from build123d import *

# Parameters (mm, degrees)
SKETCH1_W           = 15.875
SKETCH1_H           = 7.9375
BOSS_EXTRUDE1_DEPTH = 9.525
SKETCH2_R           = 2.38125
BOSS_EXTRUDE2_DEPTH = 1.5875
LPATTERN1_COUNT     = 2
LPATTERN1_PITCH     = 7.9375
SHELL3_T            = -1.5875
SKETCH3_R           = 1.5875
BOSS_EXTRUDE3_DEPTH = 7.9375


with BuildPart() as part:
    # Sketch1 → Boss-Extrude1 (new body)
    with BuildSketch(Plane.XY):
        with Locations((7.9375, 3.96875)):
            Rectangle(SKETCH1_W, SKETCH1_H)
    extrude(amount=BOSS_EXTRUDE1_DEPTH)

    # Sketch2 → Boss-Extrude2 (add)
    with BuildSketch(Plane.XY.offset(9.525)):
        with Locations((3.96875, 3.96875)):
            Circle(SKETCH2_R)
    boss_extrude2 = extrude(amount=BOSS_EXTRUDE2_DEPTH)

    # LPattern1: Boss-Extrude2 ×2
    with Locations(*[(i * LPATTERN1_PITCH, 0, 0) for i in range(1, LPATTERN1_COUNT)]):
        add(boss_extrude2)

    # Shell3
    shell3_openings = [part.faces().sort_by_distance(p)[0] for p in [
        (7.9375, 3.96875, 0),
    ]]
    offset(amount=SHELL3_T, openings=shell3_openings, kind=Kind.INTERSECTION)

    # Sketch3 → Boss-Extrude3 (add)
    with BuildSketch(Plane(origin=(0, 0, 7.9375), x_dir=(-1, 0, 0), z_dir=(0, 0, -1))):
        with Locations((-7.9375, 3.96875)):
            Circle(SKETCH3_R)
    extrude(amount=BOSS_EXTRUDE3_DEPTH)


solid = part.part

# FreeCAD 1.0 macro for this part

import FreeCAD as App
import Part
import Sketcher
from FreeCAD import Vector
Q = App.Units.Quantity


def faces_at(feature, points):
    """Names of the faces that lie closest to the given points."""
    faces = feature.Shape.Faces
    near = lambda p: min(range(len(faces)), key=lambda i: faces[i].distToShape(Part.Vertex(*p))[0])
    return sorted({f"Face{near(p) + 1}" for p in points})


def add_polygon(sketch, points):
    """Adds a closed chain of lines whose ends are joined by coincident constraints."""
    first, n = sketch.GeometryCount, len(points)
    for a, b in zip(points, points[1:] + points[:1]):
        sketch.addGeometry(Part.LineSegment(App.Vector(*a, 0), App.Vector(*b, 0)), False)
    for i in range(n):
        sketch.addConstraint(Sketcher.Constraint("Coincident", first + i, 2, first + (i + 1) % n, 1))

doc = App.newDocument("Part")
body = doc.addObject("PartDesign::Body", "Body")

sketch1 = body.newObject("Sketcher::SketchObject", "Sketch")
sketch1.AttachmentSupport = (doc.getObject("XY_Plane"), [""])
sketch1.MapMode = "FlatFace"
add_polygon(sketch1, [(0, 8), (0, 0), (16, 0), (16, 8)])
sketch1.addConstraint([
    Sketcher.Constraint("Vertical", 0),
    Sketcher.Constraint("Horizontal", 1),
    Sketcher.Constraint("Vertical", 2),
    Sketcher.Constraint("Horizontal", 3),
    Sketcher.Constraint("Coincident", 0, 2, -1, 1),
    Sketcher.Constraint("DistanceX", 1, 1, 1, 2, Q("0.625 in")),
    Sketcher.Constraint("DistanceY", 0, 2, 0, 1, Q("0.3125 in")),
])
pad1 = body.newObject("PartDesign::Pad", "Pad")
pad1.Profile = sketch1
pad1.Length = Q("0.375 in")

sketch2 = body.newObject("Sketcher::SketchObject", "Sketch001")
sketch2.AttachmentSupport = (doc.getObject("XY_Plane"), [""])
sketch2.MapMode = "FlatFace"
sketch2.AttachmentOffset = App.Placement(Vector(0, 0, 0.375 * 25.4), App.Rotation())
sketch2.addGeometry(Part.Circle(Vector(4, 4, 0), Vector(0, 0, 1), 2.4), False)
sketch2.addConstraint([
    Sketcher.Constraint("Diameter", 0, Q("0.1875 in")),
    Sketcher.Constraint("DistanceX", -1, 1, 0, 3, Q("0.15625 in")),
    Sketcher.Constraint("DistanceY", -1, 1, 0, 3, Q("0.15625 in")),
])
pad2 = body.newObject("PartDesign::Pad", "Pad001")
pad2.Profile = sketch2
pad2.Length = Q("0.0625 in")
doc.recompute()

linearpattern = body.newObject("PartDesign::LinearPattern", "LinearPattern")
linearpattern.Originals = [pad2]
linearpattern.Direction = (doc.getObject("X_Axis"), [""])
linearpattern.Mode = "offset"
linearpattern.Offset = Q("0.3125 in")
linearpattern.Occurrences = 2
body.Tip = linearpattern
doc.recompute()

thickness = body.newObject("PartDesign::Thickness", "Thickness")
thickness.Base = (linearpattern, faces_at(linearpattern, [(7.938, 3.969, 0)]))
thickness.Value = Q("0.0625 in")
thickness.Reversed = True
thickness.Join = "Intersection"

sketch3 = body.newObject("Sketcher::SketchObject", "Sketch002")
sketch3.AttachmentSupport = (doc.getObject("XY_Plane"), [""])
sketch3.MapMode = "FlatFace"
sketch3.AttachmentOffset = App.Placement(Vector(0, 0, 0.3125 * 25.4), App.Rotation())
sketch3.addGeometry(Part.Circle(Vector(7.9, 4, 0), Vector(0, 0, 1), 1.6), False)
sketch3.addConstraint([
    Sketcher.Constraint("Diameter", 0, Q("0.125 in")),
    Sketcher.Constraint("DistanceX", -1, 1, 0, 3, Q("0.3125 in")),
    Sketcher.Constraint("DistanceY", -1, 1, 0, 3, Q("0.15625 in")),
])
pad3 = body.newObject("PartDesign::Pad", "Pad002")
pad3.Profile = sketch3
pad3.Length = Q("0.3125 in")
pad3.Reversed = True

doc.recompute()
